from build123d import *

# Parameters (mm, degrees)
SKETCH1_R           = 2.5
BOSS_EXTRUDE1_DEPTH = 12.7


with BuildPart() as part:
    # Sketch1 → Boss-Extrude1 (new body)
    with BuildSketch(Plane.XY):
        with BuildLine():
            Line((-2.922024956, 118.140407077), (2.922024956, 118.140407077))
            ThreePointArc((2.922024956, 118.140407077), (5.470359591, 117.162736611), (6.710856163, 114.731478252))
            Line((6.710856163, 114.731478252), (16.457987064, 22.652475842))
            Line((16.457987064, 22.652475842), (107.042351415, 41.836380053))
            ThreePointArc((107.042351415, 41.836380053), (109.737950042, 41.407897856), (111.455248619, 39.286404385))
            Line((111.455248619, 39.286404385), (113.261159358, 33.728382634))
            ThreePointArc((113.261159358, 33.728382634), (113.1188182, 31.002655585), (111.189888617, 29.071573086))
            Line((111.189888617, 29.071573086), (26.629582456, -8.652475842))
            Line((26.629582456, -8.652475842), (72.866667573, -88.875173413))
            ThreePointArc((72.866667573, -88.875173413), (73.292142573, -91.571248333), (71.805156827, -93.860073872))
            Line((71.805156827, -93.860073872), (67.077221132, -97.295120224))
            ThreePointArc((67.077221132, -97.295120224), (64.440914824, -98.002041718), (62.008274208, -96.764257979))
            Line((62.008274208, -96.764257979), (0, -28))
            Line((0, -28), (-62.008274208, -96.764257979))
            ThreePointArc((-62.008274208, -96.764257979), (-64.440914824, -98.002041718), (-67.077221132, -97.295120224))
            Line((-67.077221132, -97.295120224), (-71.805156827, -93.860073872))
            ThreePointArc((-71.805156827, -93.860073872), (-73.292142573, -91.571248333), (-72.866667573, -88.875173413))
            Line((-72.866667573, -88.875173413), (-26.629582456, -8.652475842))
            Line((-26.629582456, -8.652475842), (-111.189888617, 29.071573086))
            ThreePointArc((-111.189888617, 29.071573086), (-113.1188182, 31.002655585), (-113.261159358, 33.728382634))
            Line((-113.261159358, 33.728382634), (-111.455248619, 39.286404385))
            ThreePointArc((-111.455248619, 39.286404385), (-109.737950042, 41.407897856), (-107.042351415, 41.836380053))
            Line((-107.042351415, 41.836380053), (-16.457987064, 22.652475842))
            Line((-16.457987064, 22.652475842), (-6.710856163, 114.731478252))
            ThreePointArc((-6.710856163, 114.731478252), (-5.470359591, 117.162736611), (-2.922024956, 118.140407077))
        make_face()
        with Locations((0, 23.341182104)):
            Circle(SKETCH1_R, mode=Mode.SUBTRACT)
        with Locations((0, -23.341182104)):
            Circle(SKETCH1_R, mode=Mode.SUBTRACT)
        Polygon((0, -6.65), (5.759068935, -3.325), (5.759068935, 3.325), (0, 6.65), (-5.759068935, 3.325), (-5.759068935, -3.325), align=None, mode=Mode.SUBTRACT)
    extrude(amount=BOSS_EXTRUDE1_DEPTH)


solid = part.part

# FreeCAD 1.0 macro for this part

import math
import FreeCAD as App
import Part
import Sketcher

V = App.Vector
Q = App.Units.Quantity


def add_polygon(sketch, points):
    """Adds a closed chain of lines whose ends are joined by coincident constraints."""
    first, n = sketch.GeometryCount, len(points)
    for a, b in zip(points, points[1:] + points[:1]):
        sketch.addGeometry(Part.LineSegment(App.Vector(*a, 0), App.Vector(*b, 0)), False)
    for i in range(n):
        sketch.addConstraint(Sketcher.Constraint("Coincident", first + i, 2, first + (i + 1) % n, 1))

doc = App.newDocument("Part")
body = doc.addObject("PartDesign::Body", "Body")

sketch1 = doc.addObject("Sketcher::SketchObject", "Sketch")
body.addObject(sketch1)
sketch1.AttachmentSupport = (doc.XY_Plane, [""])
sketch1.MapMode = "FlatFace"
sketch1.addGeometry(Part.LineSegment(V(2.9, 118.1, 0), V(-2.9, 118.1, 0)), False)
sketch1.addGeometry(Part.ArcOfCircle(Part.Circle(V(-2.9, 114.3, 0), V(0, 0, 1), 3.8), math.radians(90), math.radians(174)), False)
sketch1.addGeometry(Part.LineSegment(V(-6.7, 114.7, 0), V(-16.5, 22.7, 0)), False)
sketch1.addGeometry(Part.LineSegment(V(-16.5, 22.7, 0), V(-107, 41.8, 0)), False)
sketch1.addGeometry(Part.ArcOfCircle(Part.Circle(V(-107.8, 38.1, 0), V(0, 0, 1), 3.8), math.radians(78), math.radians(162)), False)
sketch1.addGeometry(Part.LineSegment(V(-111.5, 39.3, 0), V(-113.3, 33.7, 0)), False)
sketch1.addGeometry(Part.ArcOfCircle(Part.Circle(V(-109.6, 32.6, 0), V(0, 0, 1), 3.8), math.radians(162), math.radians(246)), False)
sketch1.addGeometry(Part.LineSegment(V(-111.2, 29.1, 0), V(-26.6, -8.7, 0)), False)
sketch1.addGeometry(Part.LineSegment(V(-26.6, -8.7, 0), V(-72.9, -88.9, 0)), False)
sketch1.addGeometry(Part.ArcOfCircle(Part.Circle(V(-69.6, -90.8, 0), V(0, 0, 1), 3.8), math.radians(150), math.radians(234)), False)
sketch1.addGeometry(Part.LineSegment(V(-71.8, -93.9, 0), V(-67.1, -97.3, 0)), False)
sketch1.addGeometry(Part.ArcOfCircle(Part.Circle(V(-64.8, -94.2, 0), V(0, 0, 1), 3.8), math.radians(-126), math.radians(-42)), False)
sketch1.addGeometry(Part.LineSegment(V(-62, -96.8, 0), V(0, -28, 0)), False)
sketch1.addGeometry(Part.LineSegment(V(0, -28, 0), V(62, -96.8, 0)), False)
sketch1.addGeometry(Part.ArcOfCircle(Part.Circle(V(64.8, -94.2, 0), V(0, 0, 1), 3.8), math.radians(-138), math.radians(-54)), False)
sketch1.addGeometry(Part.LineSegment(V(67.1, -97.3, 0), V(71.8, -93.9, 0)), False)
sketch1.addGeometry(Part.ArcOfCircle(Part.Circle(V(69.6, -90.8, 0), V(0, 0, 1), 3.8), math.radians(-54), math.radians(30)), False)
sketch1.addGeometry(Part.LineSegment(V(72.9, -88.9, 0), V(26.6, -8.7, 0)), False)
sketch1.addGeometry(Part.LineSegment(V(26.6, -8.7, 0), V(111.2, 29.1, 0)), False)
sketch1.addGeometry(Part.ArcOfCircle(Part.Circle(V(109.6, 32.6, 0), V(0, 0, 1), 3.8), math.radians(-66), math.radians(18)), False)
sketch1.addGeometry(Part.LineSegment(V(113.3, 33.7, 0), V(111.5, 39.3, 0)), False)
sketch1.addGeometry(Part.ArcOfCircle(Part.Circle(V(107.8, 38.1, 0), V(0, 0, 1), 3.8), math.radians(18), math.radians(102)), False)
sketch1.addGeometry(Part.LineSegment(V(107, 41.8, 0), V(16.5, 22.7, 0)), False)
sketch1.addGeometry(Part.LineSegment(V(16.5, 22.7, 0), V(6.7, 114.7, 0)), False)
sketch1.addGeometry(Part.ArcOfCircle(Part.Circle(V(2.9, 114.3, 0), V(0, 0, 1), 3.8), math.radians(6), math.radians(90)), False)
sketch1.addGeometry(Part.Circle(V(0, -23.3, 0), V(0, 0, 1), 2.5), False)
add_polygon(sketch1, [(0, -6.7), (-5.8, -3.3), (-5.8, 3.3), (0, 6.7), (5.8, 3.3), (5.8, -3.3)])
sketch1.addGeometry(Part.Circle(V(0, 23.3, 0), V(0, 0, 1), 2.5), False)
sketch1.addConstraint([
    Sketcher.Constraint("Tangent", 0, 2, 1, 1),
    Sketcher.Constraint("Tangent", 1, 2, 2, 1),
    Sketcher.Constraint("Coincident", 2, 2, 3, 1),
    Sketcher.Constraint("Tangent", 3, 2, 4, 1),
    Sketcher.Constraint("Tangent", 4, 2, 5, 1),
    Sketcher.Constraint("Tangent", 5, 2, 6, 1),
    Sketcher.Constraint("Tangent", 6, 2, 7, 1),
    Sketcher.Constraint("Coincident", 7, 2, 8, 1),
    Sketcher.Constraint("Tangent", 8, 2, 9, 1),
    Sketcher.Constraint("Tangent", 9, 2, 10, 1),
    Sketcher.Constraint("Tangent", 10, 2, 11, 1),
    Sketcher.Constraint("Tangent", 11, 2, 12, 1),
    Sketcher.Constraint("Coincident", 12, 2, 13, 1),
    Sketcher.Constraint("Tangent", 13, 2, 14, 1),
    Sketcher.Constraint("Tangent", 14, 2, 15, 1),
    Sketcher.Constraint("Tangent", 15, 2, 16, 1),
    Sketcher.Constraint("Tangent", 16, 2, 17, 1),
    Sketcher.Constraint("Coincident", 17, 2, 18, 1),
    Sketcher.Constraint("Tangent", 18, 2, 19, 1),
    Sketcher.Constraint("Tangent", 19, 2, 20, 1),
    Sketcher.Constraint("Tangent", 20, 2, 21, 1),
    Sketcher.Constraint("Tangent", 21, 2, 22, 1),
    Sketcher.Constraint("Coincident", 22, 2, 23, 1),
    Sketcher.Constraint("Tangent", 23, 2, 24, 1),
    Sketcher.Constraint("Tangent", 24, 2, 0, 1),
    Sketcher.Constraint("Horizontal", 0),
    Sketcher.Constraint("Vertical", 27),
    Sketcher.Constraint("Vertical", 30),
    Sketcher.Constraint("Equal", 1, 4),
    Sketcher.Constraint("Equal", 4, 6),
    Sketcher.Constraint("Equal", 6, 9),
    Sketcher.Constraint("Equal", 9, 11),
    Sketcher.Constraint("Equal", 11, 14),
    Sketcher.Constraint("Equal", 14, 16),
    Sketcher.Constraint("Equal", 16, 19),
    Sketcher.Constraint("Equal", 19, 21),
    Sketcher.Constraint("Equal", 21, 24),
    Sketcher.Constraint("Equal", 25, 32),
    Sketcher.Constraint("Symmetric", 25, 3, 32, 3, -1, 1),
    Sketcher.Constraint("Symmetric", 26, 2, 29, 2, -1, 1),
    Sketcher.Constraint("Symmetric", 28, 2, 31, 2, -1, 1),
    Sketcher.Constraint("Symmetric", 11, 3, 14, 3, -2),
    Sketcher.Constraint("Symmetric", 9, 3, 16, 3, -2),
    Sketcher.Constraint("Symmetric", 6, 3, 19, 3, -2),
    Sketcher.Constraint("Symmetric", 4, 3, 21, 3, -2),
    Sketcher.Constraint("Symmetric", 7, 2, 17, 2, -2),
    Sketcher.Constraint("Symmetric", 2, 2, 22, 2, -2),
    Sketcher.Constraint("PointOnObject", 25, 3, -2),
    Sketcher.Constraint("PointOnObject", 12, 2, -2),
    Sketcher.Constraint("PointOnObject", 28, 2, -2),
    Sketcher.Constraint("Parallel", 28, 31),
    Sketcher.Constraint("Horizontal", 1, 2, 23, 2),
    Sketcher.Constraint("Horizontal", 27, 2, 29, 2),
    Sketcher.Constraint("Equal", 2, 3),
    Sketcher.Constraint("Equal", 3, 7),
    Sketcher.Constraint("Equal", 7, 8),
    Sketcher.Constraint("Equal", 5, 10),
    Sketcher.Constraint("Equal", 8, 12),
    Sketcher.Constraint("Radius", 1, Q("0.15 in")),
    Sketcher.Constraint("Angle", 5, Q("-108 deg")),
    Sketcher.Constraint("Angle", 10, Q("-36 deg")),
    Sketcher.Constraint("Angle", 26, Q("150 deg")),
    Sketcher.Constraint("Diameter", 25, Q("5 mm")),
    Sketcher.Constraint("DistanceY", 27, 1, 27, 2, Q("6.65 mm")),
    Sketcher.Constraint("DistanceY", 10, 2, 11, 2, Q("0.0209001 in")),
    Sketcher.Constraint("Distance", 26, Q("6.65 mm")),
    Sketcher.Constraint("DistanceX", 0, 2, 0, 1, Q("5.84405 mm")),
    Sketcher.Constraint("DistanceY", 12, 2, -1, 1, Q("28 mm")),
    Sketcher.Constraint("DistanceX", 4, 3, 1, 3, Q("104.909698 mm")),
    Sketcher.Constraint("DistanceY", 3, 2, 1, 2, Q("72.895098 mm")),
    Sketcher.Constraint("DistanceY", 9, 2, 8, 2, Q("4.9849 mm")),
    Sketcher.Constraint("DistanceY", 9, 2, 7, 2, Q("85.207598 mm")),
    Sketcher.Constraint("DistanceY", 10, 2, 9, 3, Q("6.517401 mm")),
    Sketcher.Constraint("DistanceY", 32, 3, 19, 2, Q("10.387201 mm")),
])
pad1 = doc.addObject("PartDesign::Pad", "Pad")
body.addObject(pad1)
pad1.Profile = sketch1
pad1.Length = Q("0.5 in")

doc.recompute()
